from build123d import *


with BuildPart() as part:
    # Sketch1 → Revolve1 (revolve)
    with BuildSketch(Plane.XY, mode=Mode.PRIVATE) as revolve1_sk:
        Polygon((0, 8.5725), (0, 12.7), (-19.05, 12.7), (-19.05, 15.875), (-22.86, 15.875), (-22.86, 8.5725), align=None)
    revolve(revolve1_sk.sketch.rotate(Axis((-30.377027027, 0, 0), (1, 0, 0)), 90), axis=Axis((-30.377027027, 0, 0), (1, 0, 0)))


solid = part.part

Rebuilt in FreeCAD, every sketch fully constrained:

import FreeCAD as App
import Part
import Sketcher

V = App.Vector
Q = App.Units.Quantity

doc = App.newDocument("Part")
body = doc.addObject("PartDesign::Body", "Body")

# Sketch on XY plane
sketch1 = doc.addObject("Sketcher::SketchObject", "Sketch")
body.addObject(sketch1)
sketch1.AttachmentSupport = (doc.XY_Plane, [""])
sketch1.MapMode = "FlatFace"
sketch1.addGeometry(Part.LineSegment(V(0, 8.5725, 0), V(0, 12.7, 0)), False)
sketch1.addGeometry(Part.LineSegment(V(0, 12.7, 0), V(-19.05, 12.7, 0)), False)
sketch1.addGeometry(Part.LineSegment(V(-19.05, 12.7, 0), V(-19.05, 15.875, 0)), False)
sketch1.addGeometry(Part.LineSegment(V(-19.05, 15.875, 0), V(-22.86, 15.875, 0)), False)
sketch1.addGeometry(Part.LineSegment(V(-22.86, 15.875, 0), V(-22.86, 8.5725, 0)), False)
sketch1.addGeometry(Part.LineSegment(V(-22.86, 8.5725, 0), V(0, 8.5725, 0)), False)
sketch1.addConstraint(Sketcher.Constraint("Coincident", 0, 2, 1, 1))
sketch1.addConstraint(Sketcher.Constraint("Coincident", 1, 2, 2, 1))
sketch1.addConstraint(Sketcher.Constraint("Coincident", 2, 2, 3, 1))
sketch1.addConstraint(Sketcher.Constraint("Coincident", 3, 2, 4, 1))
sketch1.addConstraint(Sketcher.Constraint("Coincident", 4, 2, 5, 1))
sketch1.addConstraint(Sketcher.Constraint("Coincident", 5, 2, 0, 1))
sketch1.addConstraint(Sketcher.Constraint("Vertical", 0))
sketch1.addConstraint(Sketcher.Constraint("Horizontal", 1))
sketch1.addConstraint(Sketcher.Constraint("Vertical", 2))
sketch1.addConstraint(Sketcher.Constraint("Horizontal", 3))
sketch1.addConstraint(Sketcher.Constraint("Vertical", 4))
sketch1.addConstraint(Sketcher.Constraint("Horizontal", 5))
sketch1.addConstraint(Sketcher.Constraint("PointOnObject", 0, 2, -2))
sketch1.addConstraint(Sketcher.Constraint("DistanceX", 5, 1, 5, 2, Q("0.9 in")))
sketch1.addConstraint(Sketcher.Constraint("DistanceX", 1, 2, 1, 1, Q("0.75 in")))
sketch1.addConstraint(Sketcher.Constraint("DistanceY", -1, 1, 0, 2, Q("0.5 in")))
sketch1.addConstraint(Sketcher.Constraint("DistanceY", 2, 1, 2, 2, Q("0.125 in")))
sketch1.addConstraint(Sketcher.Constraint("DistanceY", 0, 1, 0, 2, Q("0.1625 in")))
revolution = doc.addObject("PartDesign::Revolution", "Revolution")
body.addObject(revolution)
revolution.Profile = sketch1
revolution.ReferenceAxis = (sketch1, ["H_Axis"])
revolution.Angle = 360

doc.recompute()
